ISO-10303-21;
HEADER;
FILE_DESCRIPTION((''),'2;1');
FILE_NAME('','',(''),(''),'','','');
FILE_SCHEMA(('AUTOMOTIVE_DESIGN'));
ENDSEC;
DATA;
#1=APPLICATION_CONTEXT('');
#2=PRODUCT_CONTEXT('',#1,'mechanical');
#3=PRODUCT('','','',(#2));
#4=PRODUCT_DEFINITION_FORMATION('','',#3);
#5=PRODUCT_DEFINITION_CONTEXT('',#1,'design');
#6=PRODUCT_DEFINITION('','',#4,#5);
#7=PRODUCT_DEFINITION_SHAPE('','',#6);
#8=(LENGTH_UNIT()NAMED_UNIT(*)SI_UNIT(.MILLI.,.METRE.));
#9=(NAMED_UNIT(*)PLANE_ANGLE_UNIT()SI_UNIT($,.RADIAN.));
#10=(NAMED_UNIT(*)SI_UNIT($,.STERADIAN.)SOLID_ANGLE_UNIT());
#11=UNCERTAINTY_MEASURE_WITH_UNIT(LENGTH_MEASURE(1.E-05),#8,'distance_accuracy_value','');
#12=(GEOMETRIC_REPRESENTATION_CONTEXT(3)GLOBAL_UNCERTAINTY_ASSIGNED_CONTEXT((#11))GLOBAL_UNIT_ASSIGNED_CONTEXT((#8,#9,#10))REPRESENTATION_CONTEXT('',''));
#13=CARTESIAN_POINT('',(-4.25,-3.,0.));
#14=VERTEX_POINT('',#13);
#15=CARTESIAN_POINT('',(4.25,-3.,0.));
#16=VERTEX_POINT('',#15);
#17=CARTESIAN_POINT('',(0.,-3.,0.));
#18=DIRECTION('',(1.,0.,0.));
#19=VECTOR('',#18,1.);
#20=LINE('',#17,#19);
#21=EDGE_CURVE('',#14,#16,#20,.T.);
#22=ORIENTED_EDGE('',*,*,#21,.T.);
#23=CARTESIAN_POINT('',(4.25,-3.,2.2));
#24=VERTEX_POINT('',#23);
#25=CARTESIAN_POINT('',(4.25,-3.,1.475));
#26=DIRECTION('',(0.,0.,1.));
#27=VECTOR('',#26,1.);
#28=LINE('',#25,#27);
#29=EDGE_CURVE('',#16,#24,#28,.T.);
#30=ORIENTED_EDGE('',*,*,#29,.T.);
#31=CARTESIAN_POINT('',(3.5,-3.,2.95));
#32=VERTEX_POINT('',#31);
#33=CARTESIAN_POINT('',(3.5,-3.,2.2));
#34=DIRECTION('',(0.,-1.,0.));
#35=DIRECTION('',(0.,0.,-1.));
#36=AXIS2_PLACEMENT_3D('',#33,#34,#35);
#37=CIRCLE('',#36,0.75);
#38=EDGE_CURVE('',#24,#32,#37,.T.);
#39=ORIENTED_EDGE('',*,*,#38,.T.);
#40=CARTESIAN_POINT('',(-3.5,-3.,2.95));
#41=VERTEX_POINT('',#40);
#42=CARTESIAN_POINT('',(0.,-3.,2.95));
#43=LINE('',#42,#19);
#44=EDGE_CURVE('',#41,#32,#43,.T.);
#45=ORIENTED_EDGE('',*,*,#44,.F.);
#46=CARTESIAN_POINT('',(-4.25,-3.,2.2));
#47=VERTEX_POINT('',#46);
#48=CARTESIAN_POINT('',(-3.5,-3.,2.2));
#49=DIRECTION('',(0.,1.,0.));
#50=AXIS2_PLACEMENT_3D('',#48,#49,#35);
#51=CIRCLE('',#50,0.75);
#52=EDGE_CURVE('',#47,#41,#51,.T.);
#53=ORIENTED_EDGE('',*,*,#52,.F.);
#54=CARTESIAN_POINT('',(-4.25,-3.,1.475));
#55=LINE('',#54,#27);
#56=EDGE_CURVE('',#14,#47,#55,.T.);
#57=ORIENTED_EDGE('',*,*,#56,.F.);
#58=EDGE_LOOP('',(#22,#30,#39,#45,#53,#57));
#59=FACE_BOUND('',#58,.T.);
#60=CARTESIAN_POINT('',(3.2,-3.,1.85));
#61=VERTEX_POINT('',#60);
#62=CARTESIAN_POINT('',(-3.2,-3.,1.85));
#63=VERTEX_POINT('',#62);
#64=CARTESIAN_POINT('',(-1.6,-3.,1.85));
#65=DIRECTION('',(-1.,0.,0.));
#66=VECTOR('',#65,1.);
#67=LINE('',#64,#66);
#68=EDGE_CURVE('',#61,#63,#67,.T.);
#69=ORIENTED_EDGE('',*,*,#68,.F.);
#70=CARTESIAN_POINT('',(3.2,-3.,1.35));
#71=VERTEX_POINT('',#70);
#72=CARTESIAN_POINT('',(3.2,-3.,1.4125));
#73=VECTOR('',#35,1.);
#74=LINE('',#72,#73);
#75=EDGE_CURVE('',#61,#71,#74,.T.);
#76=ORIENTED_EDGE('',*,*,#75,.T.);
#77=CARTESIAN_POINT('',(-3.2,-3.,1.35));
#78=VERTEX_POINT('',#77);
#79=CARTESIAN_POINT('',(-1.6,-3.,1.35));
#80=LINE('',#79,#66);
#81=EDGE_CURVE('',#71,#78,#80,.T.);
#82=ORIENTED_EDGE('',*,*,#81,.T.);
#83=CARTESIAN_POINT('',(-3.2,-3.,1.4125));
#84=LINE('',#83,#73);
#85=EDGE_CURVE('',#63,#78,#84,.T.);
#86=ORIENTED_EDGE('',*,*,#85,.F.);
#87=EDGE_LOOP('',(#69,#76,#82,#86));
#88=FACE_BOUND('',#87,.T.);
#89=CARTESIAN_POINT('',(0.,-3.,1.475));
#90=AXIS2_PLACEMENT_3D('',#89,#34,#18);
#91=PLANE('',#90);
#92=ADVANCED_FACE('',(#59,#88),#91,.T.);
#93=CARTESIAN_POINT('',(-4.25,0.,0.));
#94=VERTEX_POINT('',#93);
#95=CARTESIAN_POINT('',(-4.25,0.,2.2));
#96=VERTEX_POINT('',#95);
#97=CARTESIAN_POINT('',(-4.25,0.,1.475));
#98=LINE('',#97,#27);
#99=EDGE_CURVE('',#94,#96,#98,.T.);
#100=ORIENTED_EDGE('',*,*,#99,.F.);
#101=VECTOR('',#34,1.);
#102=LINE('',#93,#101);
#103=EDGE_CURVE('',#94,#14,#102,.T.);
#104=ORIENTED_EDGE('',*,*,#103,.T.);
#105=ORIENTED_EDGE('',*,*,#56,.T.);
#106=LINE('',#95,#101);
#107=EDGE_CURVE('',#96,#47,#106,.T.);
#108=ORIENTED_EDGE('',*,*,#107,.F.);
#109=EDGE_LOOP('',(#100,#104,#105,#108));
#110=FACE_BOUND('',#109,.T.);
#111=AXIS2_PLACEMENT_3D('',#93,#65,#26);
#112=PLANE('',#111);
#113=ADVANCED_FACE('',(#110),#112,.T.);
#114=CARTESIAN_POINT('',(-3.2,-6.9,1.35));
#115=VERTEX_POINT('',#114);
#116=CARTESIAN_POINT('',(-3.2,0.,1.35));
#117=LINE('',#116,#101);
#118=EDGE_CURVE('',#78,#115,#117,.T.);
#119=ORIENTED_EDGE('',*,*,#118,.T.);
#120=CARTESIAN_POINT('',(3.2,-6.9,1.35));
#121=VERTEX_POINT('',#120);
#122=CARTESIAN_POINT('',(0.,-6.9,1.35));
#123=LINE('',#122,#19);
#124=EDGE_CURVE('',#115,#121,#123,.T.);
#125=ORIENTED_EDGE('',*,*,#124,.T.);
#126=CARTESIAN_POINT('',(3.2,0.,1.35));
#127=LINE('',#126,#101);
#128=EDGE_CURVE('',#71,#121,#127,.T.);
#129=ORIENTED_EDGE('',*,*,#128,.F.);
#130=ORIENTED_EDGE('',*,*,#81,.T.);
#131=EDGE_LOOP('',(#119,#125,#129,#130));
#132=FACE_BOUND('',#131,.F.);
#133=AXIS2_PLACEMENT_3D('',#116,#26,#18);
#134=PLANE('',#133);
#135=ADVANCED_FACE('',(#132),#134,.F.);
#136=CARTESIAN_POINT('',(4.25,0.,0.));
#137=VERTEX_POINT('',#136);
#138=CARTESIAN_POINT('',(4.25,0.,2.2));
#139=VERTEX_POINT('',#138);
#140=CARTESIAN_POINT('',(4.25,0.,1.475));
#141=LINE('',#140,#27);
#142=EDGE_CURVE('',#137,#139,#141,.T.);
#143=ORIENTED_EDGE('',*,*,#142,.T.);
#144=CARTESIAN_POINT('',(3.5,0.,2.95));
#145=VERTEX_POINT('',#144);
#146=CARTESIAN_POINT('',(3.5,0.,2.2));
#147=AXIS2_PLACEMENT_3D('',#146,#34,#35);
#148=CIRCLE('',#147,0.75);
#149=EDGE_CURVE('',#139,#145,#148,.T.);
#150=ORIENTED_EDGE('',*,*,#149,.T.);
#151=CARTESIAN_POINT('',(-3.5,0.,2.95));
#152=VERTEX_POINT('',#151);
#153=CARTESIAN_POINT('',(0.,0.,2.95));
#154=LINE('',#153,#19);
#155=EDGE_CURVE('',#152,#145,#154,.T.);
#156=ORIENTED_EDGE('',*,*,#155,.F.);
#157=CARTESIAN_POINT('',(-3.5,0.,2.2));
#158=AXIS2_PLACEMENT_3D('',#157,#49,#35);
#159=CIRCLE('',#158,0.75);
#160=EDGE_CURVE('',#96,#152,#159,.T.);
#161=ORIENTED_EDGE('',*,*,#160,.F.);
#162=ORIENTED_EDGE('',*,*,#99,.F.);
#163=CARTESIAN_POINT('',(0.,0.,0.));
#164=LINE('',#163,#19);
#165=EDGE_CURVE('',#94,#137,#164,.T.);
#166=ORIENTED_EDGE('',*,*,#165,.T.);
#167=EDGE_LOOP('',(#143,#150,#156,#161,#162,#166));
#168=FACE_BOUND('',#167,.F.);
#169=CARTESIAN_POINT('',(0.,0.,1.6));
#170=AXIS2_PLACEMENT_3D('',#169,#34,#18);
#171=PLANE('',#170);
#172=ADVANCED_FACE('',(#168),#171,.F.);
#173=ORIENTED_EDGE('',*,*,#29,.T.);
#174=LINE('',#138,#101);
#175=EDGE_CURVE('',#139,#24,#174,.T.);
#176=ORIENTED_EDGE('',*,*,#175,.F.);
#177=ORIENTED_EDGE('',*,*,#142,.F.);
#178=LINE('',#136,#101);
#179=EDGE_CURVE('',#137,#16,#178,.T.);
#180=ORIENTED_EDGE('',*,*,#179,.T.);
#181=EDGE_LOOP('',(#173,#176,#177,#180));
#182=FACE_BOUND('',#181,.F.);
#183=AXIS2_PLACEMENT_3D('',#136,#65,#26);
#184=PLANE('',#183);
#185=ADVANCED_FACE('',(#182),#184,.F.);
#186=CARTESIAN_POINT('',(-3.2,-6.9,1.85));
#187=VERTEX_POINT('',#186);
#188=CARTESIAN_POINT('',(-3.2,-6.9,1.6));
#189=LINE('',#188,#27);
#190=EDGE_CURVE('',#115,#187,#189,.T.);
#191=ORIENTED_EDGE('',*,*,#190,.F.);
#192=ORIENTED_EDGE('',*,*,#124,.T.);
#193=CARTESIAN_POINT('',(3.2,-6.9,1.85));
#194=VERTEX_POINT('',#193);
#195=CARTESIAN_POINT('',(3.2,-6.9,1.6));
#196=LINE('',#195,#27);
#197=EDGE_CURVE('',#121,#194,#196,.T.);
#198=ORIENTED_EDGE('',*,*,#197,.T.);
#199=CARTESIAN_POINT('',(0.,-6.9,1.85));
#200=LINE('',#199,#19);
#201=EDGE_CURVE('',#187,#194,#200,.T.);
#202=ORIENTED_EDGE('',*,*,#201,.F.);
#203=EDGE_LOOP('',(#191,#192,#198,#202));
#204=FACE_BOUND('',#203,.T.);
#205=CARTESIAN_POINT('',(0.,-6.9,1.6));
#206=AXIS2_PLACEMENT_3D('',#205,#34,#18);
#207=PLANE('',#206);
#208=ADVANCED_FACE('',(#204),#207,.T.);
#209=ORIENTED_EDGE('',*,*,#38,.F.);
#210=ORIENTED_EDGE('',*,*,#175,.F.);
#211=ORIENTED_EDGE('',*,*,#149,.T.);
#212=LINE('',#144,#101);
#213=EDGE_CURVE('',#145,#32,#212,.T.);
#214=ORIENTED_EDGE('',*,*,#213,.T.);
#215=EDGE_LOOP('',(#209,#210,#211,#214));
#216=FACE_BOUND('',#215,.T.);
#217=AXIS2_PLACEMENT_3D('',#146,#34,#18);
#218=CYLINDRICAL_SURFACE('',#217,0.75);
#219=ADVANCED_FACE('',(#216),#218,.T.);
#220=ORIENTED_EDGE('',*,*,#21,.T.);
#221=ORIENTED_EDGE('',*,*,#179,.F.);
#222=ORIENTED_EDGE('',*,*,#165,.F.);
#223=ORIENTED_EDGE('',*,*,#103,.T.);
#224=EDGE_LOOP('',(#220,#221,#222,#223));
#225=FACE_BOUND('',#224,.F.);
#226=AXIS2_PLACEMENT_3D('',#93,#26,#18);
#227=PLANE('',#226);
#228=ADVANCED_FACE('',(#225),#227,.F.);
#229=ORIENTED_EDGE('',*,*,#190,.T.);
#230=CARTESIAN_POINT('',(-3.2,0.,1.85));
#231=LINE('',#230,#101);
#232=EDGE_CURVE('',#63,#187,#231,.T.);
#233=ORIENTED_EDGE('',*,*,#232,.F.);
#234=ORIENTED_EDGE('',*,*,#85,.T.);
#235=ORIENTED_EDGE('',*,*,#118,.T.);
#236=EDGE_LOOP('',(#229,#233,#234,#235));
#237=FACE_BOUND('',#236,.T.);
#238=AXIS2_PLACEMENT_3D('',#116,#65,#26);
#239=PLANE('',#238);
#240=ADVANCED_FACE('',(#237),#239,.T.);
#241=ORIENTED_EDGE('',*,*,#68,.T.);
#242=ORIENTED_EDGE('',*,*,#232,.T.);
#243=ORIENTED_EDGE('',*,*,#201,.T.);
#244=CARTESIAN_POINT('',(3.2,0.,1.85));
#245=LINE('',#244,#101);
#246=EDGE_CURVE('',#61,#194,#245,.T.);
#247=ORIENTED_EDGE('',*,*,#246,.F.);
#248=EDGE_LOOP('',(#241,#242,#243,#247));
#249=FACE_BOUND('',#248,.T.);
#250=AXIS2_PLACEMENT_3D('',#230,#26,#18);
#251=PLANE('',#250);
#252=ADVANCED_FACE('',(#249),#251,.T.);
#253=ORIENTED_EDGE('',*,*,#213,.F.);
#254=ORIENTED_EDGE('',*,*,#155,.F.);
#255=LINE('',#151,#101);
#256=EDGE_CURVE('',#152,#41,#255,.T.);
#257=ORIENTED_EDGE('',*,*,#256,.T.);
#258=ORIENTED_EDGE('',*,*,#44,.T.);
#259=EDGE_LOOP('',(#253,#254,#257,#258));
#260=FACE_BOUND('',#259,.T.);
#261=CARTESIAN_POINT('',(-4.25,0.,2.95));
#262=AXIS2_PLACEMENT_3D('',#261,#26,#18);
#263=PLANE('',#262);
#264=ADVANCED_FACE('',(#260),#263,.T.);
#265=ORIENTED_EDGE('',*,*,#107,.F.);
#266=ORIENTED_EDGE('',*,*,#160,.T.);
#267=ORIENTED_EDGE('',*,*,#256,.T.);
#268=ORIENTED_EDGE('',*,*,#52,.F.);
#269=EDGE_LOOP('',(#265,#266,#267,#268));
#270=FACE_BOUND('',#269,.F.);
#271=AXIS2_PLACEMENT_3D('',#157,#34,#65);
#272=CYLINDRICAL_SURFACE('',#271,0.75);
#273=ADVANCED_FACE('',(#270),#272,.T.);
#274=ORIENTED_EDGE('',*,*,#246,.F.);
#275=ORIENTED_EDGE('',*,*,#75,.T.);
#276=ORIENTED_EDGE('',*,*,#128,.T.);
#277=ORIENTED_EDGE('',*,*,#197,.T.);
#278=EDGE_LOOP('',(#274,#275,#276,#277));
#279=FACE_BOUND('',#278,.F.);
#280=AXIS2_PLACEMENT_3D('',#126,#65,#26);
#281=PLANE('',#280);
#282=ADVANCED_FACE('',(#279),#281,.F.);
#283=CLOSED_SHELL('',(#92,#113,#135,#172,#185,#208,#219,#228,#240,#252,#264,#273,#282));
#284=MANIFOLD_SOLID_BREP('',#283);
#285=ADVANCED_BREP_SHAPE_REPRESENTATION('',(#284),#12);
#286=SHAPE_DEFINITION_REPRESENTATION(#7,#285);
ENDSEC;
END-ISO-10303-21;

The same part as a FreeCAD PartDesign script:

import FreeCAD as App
import Part
import Sketcher


def edges_at(feature, points):
    """Names of the edges that pass closest to the given points."""
    edges = feature.Shape.Edges
    near = lambda p: min(range(len(edges)), key=lambda i: edges[i].distToShape(Part.Vertex(*p))[0])
    return sorted({f"Edge{near(p) + 1}" for p in points})


def add_polygon(sketch, points):
    """Adds a closed chain of lines whose ends are joined by coincident constraints."""
    first, n = sketch.GeometryCount, len(points)
    for a, b in zip(points, points[1:] + points[:1]):
        sketch.addGeometry(Part.LineSegment(App.Vector(*a, 0), App.Vector(*b, 0)), False)
    for i in range(n):
        sketch.addConstraint(Sketcher.Constraint("Coincident", first + i, 2, first + (i + 1) % n, 1))

doc = App.newDocument("Part")
params = doc.addObject("Spreadsheet::Sheet", "Params")
for row, (alias, value) in enumerate([
    ("sketch1_width", "6.4 mm"),
    ("sketch1_height", "0.5 mm"),
    ("pad1_length", "6.9 mm"),
    ("sketch2_width", "8.5 mm"),
    ("sketch2_height", "2.95 mm"),
    ("pad2_length", "3 mm"),
    ("fillet_radius", "0.75 mm"),
], start=1):
    params.set(f"A{row}", alias)
    params.set(f"B{row}", "=" + value)
    params.setAlias(f"B{row}", alias)

body = doc.addObject("PartDesign::Body", "Body")

sketch1 = body.newObject("Sketcher::SketchObject", "Sketch")
sketch1.AttachmentSupport = (doc.getObject("XY_Plane"), [""])
sketch1.MapMode = "FlatFace"
add_polygon(sketch1, [(-3.2, 1.85), (-3.2, 1.35), (3.2, 1.35), (3.2, 1.85)])
sketch1.addConstraint([
    Sketcher.Constraint("Vertical", 0),
    Sketcher.Constraint("Horizontal", 1),
    Sketcher.Constraint("Vertical", 2),
    Sketcher.Constraint("Horizontal", 3),
    Sketcher.Constraint("DistanceX", 1, 1, 1, 2, 6.4),
    Sketcher.Constraint("DistanceY", 0, 2, 0, 1, 0.5),
    Sketcher.Constraint("DistanceX", 0, 2, -1, 1, 3.2),
    Sketcher.Constraint("DistanceY", -1, 1, 0, 2, 1.35),
])
sketch1.setExpression("Constraints[8]", "Params.sketch1_width")
sketch1.setExpression("Constraints[9]", "Params.sketch1_height")
pad1 = body.newObject("PartDesign::Pad", "Pad")
pad1.Profile = sketch1
pad1.setExpression("Length", "Params.pad1_length")
body2 = doc.addObject("PartDesign::Body", "Body001")

sketch2 = body2.newObject("Sketcher::SketchObject", "Sketch001")
sketch2.AttachmentSupport = (doc.getObject("XY_Plane001"), [""])
sketch2.MapMode = "FlatFace"
add_polygon(sketch2, [(-4.25, 2.95), (-4.25, 0), (4.25, 0), (4.25, 2.95)])
sketch2.addConstraint([
    Sketcher.Constraint("Vertical", 0),
    Sketcher.Constraint("Horizontal", 1),
    Sketcher.Constraint("Vertical", 2),
    Sketcher.Constraint("Horizontal", 3),
    Sketcher.Constraint("Symmetric", 0, 2, 1, 2, -1, 1),
    Sketcher.Constraint("DistanceX", 1, 1, 1, 2, 8.5),
    Sketcher.Constraint("DistanceY", 0, 2, 0, 1, 2.95),
])
sketch2.setExpression("Constraints[9]", "Params.sketch2_width")
sketch2.setExpression("Constraints[10]", "Params.sketch2_height")
pad2 = body2.newObject("PartDesign::Pad", "Pad001")
pad2.Profile = sketch2
pad2.setExpression("Length", "Params.pad2_length")
doc.recompute()

fillet = body2.newObject("PartDesign::Fillet", "Fillet")
fillet.Base = (pad2, edges_at(pad2, [(-4.25, 2.95, 1.5), (4.25, 2.95, 1.5)]))
fillet.setExpression("Radius", "Params.fillet_radius")
doc.recompute()

boolean = body2.newObject("PartDesign::Boolean", "Boolean")
boolean.Type = "Fuse"
boolean.addObjects([body])
body3 = doc.addObject("PartDesign::Body", "Body002")
doc.recompute()

body2.Placement = App.Placement(App.Vector(0, 0, 0), App.Rotation(App.Vector(1, 0, 0), 90))
boolean2 = body3.newObject("PartDesign::Boolean", "Boolean001")
boolean2.Type = "Fuse"
boolean2.addObjects([body2])

doc.recompute()
